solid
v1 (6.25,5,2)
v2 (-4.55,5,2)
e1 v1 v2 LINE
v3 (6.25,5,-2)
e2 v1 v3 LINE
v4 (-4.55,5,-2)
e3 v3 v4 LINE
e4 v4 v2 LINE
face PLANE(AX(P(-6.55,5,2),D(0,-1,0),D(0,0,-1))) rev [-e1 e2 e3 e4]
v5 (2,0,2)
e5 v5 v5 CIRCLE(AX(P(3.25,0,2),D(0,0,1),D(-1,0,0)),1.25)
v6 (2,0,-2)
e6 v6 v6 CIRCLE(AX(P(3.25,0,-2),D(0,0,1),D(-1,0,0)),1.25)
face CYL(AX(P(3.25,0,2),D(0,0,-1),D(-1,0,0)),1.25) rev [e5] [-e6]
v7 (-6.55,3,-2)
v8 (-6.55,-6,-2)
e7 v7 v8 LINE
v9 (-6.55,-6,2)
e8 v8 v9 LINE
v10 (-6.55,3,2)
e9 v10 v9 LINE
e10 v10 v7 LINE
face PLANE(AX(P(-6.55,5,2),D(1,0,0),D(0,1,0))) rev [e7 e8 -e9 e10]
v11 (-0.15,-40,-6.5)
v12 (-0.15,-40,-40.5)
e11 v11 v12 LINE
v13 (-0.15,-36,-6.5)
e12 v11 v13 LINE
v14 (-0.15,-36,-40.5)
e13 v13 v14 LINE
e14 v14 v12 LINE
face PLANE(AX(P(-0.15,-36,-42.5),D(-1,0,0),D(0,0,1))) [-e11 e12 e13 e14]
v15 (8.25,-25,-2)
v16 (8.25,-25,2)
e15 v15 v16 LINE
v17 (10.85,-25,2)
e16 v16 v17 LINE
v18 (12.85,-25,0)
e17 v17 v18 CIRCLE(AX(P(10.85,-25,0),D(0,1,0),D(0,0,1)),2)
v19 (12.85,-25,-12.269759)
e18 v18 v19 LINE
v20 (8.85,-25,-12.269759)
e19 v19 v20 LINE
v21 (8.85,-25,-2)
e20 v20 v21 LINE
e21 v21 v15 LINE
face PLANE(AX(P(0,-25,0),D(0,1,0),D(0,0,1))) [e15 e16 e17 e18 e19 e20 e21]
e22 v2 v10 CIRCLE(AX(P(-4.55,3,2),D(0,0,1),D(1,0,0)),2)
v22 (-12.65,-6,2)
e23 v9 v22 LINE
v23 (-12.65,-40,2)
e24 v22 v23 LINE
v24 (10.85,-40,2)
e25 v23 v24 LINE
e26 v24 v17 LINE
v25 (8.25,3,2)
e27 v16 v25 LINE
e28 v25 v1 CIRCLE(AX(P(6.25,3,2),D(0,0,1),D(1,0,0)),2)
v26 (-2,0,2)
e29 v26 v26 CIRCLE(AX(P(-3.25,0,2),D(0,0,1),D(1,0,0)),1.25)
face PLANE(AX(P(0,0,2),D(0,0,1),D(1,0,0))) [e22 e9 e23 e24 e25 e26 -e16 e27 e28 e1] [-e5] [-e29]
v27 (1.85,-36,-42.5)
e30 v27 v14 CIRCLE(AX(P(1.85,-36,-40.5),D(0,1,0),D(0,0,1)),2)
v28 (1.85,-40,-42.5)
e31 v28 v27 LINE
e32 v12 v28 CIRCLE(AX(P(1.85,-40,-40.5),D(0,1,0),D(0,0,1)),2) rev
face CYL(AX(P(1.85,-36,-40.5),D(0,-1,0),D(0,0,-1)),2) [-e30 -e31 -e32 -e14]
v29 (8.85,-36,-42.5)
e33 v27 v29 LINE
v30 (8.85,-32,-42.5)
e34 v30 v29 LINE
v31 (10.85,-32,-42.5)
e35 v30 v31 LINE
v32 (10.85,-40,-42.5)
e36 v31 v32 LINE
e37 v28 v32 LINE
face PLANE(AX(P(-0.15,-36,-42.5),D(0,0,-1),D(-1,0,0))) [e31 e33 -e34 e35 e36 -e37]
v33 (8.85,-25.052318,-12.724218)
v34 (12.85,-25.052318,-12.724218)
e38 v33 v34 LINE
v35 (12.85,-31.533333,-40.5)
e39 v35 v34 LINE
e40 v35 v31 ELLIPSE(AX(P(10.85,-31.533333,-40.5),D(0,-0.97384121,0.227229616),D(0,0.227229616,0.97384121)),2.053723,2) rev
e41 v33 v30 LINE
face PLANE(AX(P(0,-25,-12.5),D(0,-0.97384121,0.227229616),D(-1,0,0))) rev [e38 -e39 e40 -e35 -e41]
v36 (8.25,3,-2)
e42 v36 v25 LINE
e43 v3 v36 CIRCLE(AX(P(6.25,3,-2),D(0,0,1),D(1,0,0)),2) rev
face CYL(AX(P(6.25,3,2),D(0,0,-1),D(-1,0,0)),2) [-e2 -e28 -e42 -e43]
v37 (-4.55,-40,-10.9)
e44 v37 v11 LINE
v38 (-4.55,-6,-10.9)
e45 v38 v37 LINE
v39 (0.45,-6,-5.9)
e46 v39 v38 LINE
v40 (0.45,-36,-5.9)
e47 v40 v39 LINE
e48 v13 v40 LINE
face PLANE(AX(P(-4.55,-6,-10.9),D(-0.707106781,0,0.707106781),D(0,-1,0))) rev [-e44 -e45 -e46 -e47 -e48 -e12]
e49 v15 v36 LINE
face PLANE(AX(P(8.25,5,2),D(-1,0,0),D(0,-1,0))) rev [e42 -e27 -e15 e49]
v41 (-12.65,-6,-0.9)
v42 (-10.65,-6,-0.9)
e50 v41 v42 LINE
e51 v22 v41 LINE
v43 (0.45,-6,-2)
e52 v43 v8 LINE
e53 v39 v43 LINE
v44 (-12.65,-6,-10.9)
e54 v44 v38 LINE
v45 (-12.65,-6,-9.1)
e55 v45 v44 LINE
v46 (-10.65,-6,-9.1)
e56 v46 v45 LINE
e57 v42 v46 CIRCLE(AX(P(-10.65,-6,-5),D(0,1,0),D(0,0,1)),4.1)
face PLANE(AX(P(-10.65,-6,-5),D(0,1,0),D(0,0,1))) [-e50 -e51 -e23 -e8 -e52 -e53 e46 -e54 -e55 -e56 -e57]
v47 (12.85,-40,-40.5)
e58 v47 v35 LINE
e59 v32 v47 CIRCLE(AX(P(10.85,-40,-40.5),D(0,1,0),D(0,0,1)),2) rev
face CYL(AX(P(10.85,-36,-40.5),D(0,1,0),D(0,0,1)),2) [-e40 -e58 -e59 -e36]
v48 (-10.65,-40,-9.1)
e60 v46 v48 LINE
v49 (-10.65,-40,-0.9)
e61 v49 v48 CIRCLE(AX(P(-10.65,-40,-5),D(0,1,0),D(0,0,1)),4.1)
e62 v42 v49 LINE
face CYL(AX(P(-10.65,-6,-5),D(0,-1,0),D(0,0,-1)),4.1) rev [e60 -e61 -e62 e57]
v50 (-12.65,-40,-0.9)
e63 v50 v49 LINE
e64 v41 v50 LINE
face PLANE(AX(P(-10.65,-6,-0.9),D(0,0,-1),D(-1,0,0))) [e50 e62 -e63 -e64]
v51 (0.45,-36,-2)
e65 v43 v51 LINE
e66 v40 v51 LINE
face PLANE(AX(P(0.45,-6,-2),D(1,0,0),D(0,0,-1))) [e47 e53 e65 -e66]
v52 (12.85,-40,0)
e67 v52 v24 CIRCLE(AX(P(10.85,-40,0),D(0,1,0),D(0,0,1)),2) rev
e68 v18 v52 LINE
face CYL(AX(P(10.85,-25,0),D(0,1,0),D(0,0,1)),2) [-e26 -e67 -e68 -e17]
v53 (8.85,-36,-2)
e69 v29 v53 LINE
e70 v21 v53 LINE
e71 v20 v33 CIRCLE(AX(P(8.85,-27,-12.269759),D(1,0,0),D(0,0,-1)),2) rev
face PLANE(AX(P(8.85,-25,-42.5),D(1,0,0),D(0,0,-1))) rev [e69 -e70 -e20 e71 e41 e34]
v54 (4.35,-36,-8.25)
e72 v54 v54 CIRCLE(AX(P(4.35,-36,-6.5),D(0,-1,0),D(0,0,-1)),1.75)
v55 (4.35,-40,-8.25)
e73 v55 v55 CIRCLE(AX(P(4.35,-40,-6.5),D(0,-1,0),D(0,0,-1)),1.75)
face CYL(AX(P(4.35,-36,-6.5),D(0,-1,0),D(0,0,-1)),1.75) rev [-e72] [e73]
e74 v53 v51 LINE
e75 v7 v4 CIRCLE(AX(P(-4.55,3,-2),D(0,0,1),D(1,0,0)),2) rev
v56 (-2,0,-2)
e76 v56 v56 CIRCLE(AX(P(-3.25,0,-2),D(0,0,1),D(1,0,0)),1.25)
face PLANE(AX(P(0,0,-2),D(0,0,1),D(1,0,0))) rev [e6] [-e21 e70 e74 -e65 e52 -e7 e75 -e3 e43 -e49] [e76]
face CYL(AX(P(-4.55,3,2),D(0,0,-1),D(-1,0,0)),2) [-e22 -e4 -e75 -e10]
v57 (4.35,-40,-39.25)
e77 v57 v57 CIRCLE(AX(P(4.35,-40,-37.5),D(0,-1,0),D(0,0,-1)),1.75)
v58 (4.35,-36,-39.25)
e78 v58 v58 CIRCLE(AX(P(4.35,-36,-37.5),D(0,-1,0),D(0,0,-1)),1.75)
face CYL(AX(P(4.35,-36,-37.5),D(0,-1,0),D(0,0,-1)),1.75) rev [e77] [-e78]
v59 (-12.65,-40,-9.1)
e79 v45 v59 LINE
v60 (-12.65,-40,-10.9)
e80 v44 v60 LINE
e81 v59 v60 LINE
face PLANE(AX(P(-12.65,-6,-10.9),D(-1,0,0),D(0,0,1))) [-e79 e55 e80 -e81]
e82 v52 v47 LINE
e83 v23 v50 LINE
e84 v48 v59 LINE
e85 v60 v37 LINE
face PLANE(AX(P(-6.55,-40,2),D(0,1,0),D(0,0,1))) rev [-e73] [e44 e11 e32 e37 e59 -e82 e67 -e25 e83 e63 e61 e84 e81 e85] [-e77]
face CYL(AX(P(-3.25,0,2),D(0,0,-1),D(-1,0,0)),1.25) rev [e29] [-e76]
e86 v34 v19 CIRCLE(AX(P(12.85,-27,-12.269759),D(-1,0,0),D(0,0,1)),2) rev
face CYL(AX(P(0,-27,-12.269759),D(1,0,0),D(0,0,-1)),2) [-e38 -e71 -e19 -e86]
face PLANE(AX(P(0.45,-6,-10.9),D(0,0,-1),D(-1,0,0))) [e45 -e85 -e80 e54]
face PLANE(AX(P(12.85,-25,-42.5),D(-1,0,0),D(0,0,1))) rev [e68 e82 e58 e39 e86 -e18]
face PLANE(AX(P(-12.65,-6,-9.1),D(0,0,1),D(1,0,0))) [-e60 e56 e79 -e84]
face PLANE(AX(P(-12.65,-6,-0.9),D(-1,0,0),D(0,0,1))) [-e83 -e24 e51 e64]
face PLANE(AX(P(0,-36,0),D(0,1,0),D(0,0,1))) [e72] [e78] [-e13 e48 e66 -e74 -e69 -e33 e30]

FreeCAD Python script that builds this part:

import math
import FreeCAD as App
import Part
import Sketcher
Q = App.Units.Quantity


def edges_at(feature, points):
    """Names of the edges that pass closest to the given points."""
    edges = feature.Shape.Edges
    near = lambda p: min(range(len(edges)), key=lambda i: edges[i].distToShape(Part.Vertex(*p))[0])
    return sorted({f"Edge{near(p) + 1}" for p in points})

doc = App.newDocument("Part")
params = doc.addObject("Spreadsheet::Sheet", "Params")
for row, (alias, value) in enumerate([
    ("sketch1_diameter", "2.5 mm"),
    ("sketch1_height", "45 mm"),
    ("sketch1_width", "14.8 mm"),
    ("pad1_length", "4 mm"),
    ("sketch2_radius", "4.1 mm"),
    ("sketch2_width", "2 mm"),
    ("sketch2_width2", "7 mm"),
    ("sketch2_height", "4 mm"),
    ("sketch2_width3", "6.1 mm"),
    ("pad2_length", "34 mm"),
    ("chamfer_size", "5 mm"),
    ("sketch3_diameter", "3.5 mm"),
    ("sketch3_width", "9 mm"),
    ("sketch3_height", "44.5 mm"),
    ("pad3_length", "4 mm"),
    ("sketch4_width", "4 mm"),
    ("sketch4_width2", "0.6 mm"),
    ("sketch4_height", "40.5 mm"),
    ("pad4_length", "15 mm"),
    ("chamfer2_size", "7 mm"),
    ("chamfer2_size2", "30 mm"),
    ("fillet_radius", "2 mm"),
    ("fillet2_radius", "2 mm"),
], start=1):
    params.set(f"A{row}", alias)
    params.set(f"B{row}", "=" + value)
    params.setAlias(f"B{row}", alias)

body = doc.addObject("PartDesign::Body", "Body")

sketch1 = body.newObject("Sketcher::SketchObject", "Sketch")
sketch1.AttachmentSupport = (doc.getObject("XY_Plane"), [""])
sketch1.MapMode = "FlatFace"
sketch1.addGeometry([
    Part.LineSegment(App.Vector(-6.5, 5, 0), App.Vector(-6.5, -40, 0)),
    Part.LineSegment(App.Vector(-6.5, -40, 0), App.Vector(8.2, -40, 0)),
    Part.LineSegment(App.Vector(8.2, -40, 0), App.Vector(8.2, 5, 0)),
    Part.LineSegment(App.Vector(8.2, 5, 0), App.Vector(-6.5, 5, 0)),
    Part.Circle(App.Vector(-3.2, 0, 0), App.Vector(0, 0, 1), 1.2),
    Part.Circle(App.Vector(3.2, 0, 0), App.Vector(0, 0, 1), 1.2),
], False)
sketch1.addConstraint([
    Sketcher.Constraint("Coincident", 0, 2, 1, 1),
    Sketcher.Constraint("Coincident", 1, 2, 2, 1),
    Sketcher.Constraint("Coincident", 2, 2, 3, 1),
    Sketcher.Constraint("Coincident", 3, 2, 0, 1),
    Sketcher.Constraint("Vertical", 0),
    Sketcher.Constraint("Horizontal", 1),
    Sketcher.Constraint("Vertical", 2),
    Sketcher.Constraint("Horizontal", 3),
    Sketcher.Constraint("Equal", 4, 5),
    Sketcher.Constraint("Symmetric", 4, 3, 5, 3, -1, 1),
    Sketcher.Constraint("PointOnObject", 4, 3, -1),
    Sketcher.Constraint("Diameter", 4, Q("2.5 mm")),
    Sketcher.Constraint("DistanceY", 0, 2, 0, 1, Q("45 mm")),
    Sketcher.Constraint("DistanceX", 1, 1, 1, 2, Q("14.8 mm")),
    Sketcher.Constraint("DistanceY", 0, 2, -1, 1, Q("40 mm")),
    Sketcher.Constraint("DistanceX", 5, 3, 1, 2, Q("5 mm")),
    Sketcher.Constraint("DistanceX", 4, 3, 5, 3, Q("6.5 mm")),
])
sketch1.setExpression("Constraints[11]", "Params.sketch1_diameter")
sketch1.setExpression("Constraints[12]", "Params.sketch1_height")
sketch1.setExpression("Constraints[13]", "Params.sketch1_width")
pad1 = body.newObject("PartDesign::Pad", "Pad")
pad1.Profile = sketch1
pad1.setExpression("Length", "Params.pad1_length")
pad1.Midplane = True

sketch2 = body.newObject("Sketcher::SketchObject", "Sketch001")
sketch2.AttachmentSupport = (doc.getObject("XZ_Plane"), [""])
sketch2.MapMode = "FlatFace"
sketch2.AttachmentOffset = App.Placement(App.Vector(0, 0, 40), App.Rotation())
sketch2.addGeometry([
    Part.LineSegment(App.Vector(-6.5, -2, 0), App.Vector(-6.5, 2, 0)),
    Part.LineSegment(App.Vector(-6.5, 2, 0), App.Vector(-12.7, 2, 0)),
    Part.LineSegment(App.Vector(-12.7, 2, 0), App.Vector(-12.7, -0.9, 0)),
    Part.LineSegment(App.Vector(-12.7, -0.9, 0), App.Vector(-10.7, -0.9, 0)),
    Part.ArcOfCircle(Part.Circle(App.Vector(-10.7, -5, 0), App.Vector(0, 0, 1), 4.1), math.radians(-90), math.radians(90)),
    Part.LineSegment(App.Vector(-10.7, -9.1, 0), App.Vector(-12.7, -9.1, 0)),
    Part.LineSegment(App.Vector(-12.7, -9.1, 0), App.Vector(-12.7, -10.9, 0)),
    Part.LineSegment(App.Vector(-12.7, -10.9, 0), App.Vector(0.5, -10.9, 0)),
    Part.LineSegment(App.Vector(0.5, -10.9, 0), App.Vector(0.5, -2, 0)),
    Part.LineSegment(App.Vector(0.5, -2, 0), App.Vector(-6.5, -2, 0)),
], False)
sketch2.addConstraint([
    Sketcher.Constraint("Coincident", 0, 2, 1, 1),
    Sketcher.Constraint("Coincident", 1, 2, 2, 1),
    Sketcher.Constraint("Coincident", 2, 2, 3, 1),
    Sketcher.Constraint("Tangent", 3, 2, 4, 2),
    Sketcher.Constraint("Tangent", 4, 1, 5, 1),
    Sketcher.Constraint("Coincident", 5, 2, 6, 1),
    Sketcher.Constraint("Coincident", 6, 2, 7, 1),
    Sketcher.Constraint("Coincident", 7, 2, 8, 1),
    Sketcher.Constraint("Coincident", 8, 2, 9, 1),
    Sketcher.Constraint("Coincident", 9, 2, 0, 1),
    Sketcher.Constraint("Vertical", 0),
    Sketcher.Constraint("Horizontal", 1),
    Sketcher.Constraint("Vertical", 2),
    Sketcher.Constraint("Horizontal", 3),
    Sketcher.Constraint("Horizontal", 5),
    Sketcher.Constraint("Vertical", 6),
    Sketcher.Constraint("Horizontal", 7),
    Sketcher.Constraint("Vertical", 8),
    Sketcher.Constraint("Horizontal", 9),
    Sketcher.Constraint("Vertical", 2, 2, 5, 2),
    Sketcher.Constraint("Radius", 4, Q("4.1 mm")),
    Sketcher.Constraint("DistanceX", 3, 1, 3, 2, Q("2 mm")),
    Sketcher.Constraint("DistanceX", 9, 2, 9, 1, Q("7 mm")),
    Sketcher.Constraint("DistanceY", 0, 1, 0, 2, Q("4 mm")),
    Sketcher.Constraint("DistanceX", 1, 2, 1, 1, Q("6.1 mm")),
    Sketcher.Constraint("DistanceY", 2, 2, 2, 1, Q("2.9 mm")),
    Sketcher.Constraint("DistanceY", 6, 2, 6, 1, Q("1.8 mm")),
    Sketcher.Constraint("DistanceY", 4, 3, -1, 1, Q("5 mm")),
    Sketcher.Constraint("DistanceX", 4, 3, -1, 1, Q("10.65 mm")),
])
sketch2.setExpression("Constraints[20]", "Params.sketch2_radius")
sketch2.setExpression("Constraints[21]", "Params.sketch2_width")
sketch2.setExpression("Constraints[22]", "Params.sketch2_width2")
sketch2.setExpression("Constraints[23]", "Params.sketch2_height")
sketch2.setExpression("Constraints[24]", "Params.sketch2_width3")
pad2 = body.newObject("PartDesign::Pad", "Pad001")
pad2.Profile = sketch2
pad2.setExpression("Length", "Params.pad2_length")
pad2.Reversed = True
doc.recompute()

chamfer = body.newObject("PartDesign::Chamfer", "Chamfer")
chamfer.Base = (pad2, edges_at(pad2, [(0.45, -23, -10.9)]))
chamfer.setExpression("Size", "Params.chamfer_size")

sketch3 = body.newObject("Sketcher::SketchObject", "Sketch002")
sketch3.AttachmentSupport = (doc.getObject("XZ_Plane"), [""])
sketch3.MapMode = "FlatFace"
sketch3.AttachmentOffset = App.Placement(App.Vector(0, 0, 40), App.Rotation())
sketch3.addGeometry([
    Part.LineSegment(App.Vector(-0.1, 2, 0), App.Vector(-0.1, -42.5, 0)),
    Part.LineSegment(App.Vector(-0.1, -42.5, 0), App.Vector(8.8, -42.5, 0)),
    Part.LineSegment(App.Vector(8.8, -42.5, 0), App.Vector(8.8, 2, 0)),
    Part.LineSegment(App.Vector(8.8, 2, 0), App.Vector(-0.1, 2, 0)),
    Part.Circle(App.Vector(4.3, -37.5, 0), App.Vector(0, 0, 1), 1.8),
    Part.Circle(App.Vector(4.3, -6.5, 0), App.Vector(0, 0, 1), 1.8),
], False)
sketch3.addConstraint([
    Sketcher.Constraint("Coincident", 0, 2, 1, 1),
    Sketcher.Constraint("Coincident", 1, 2, 2, 1),
    Sketcher.Constraint("Coincident", 2, 2, 3, 1),
    Sketcher.Constraint("Coincident", 3, 2, 0, 1),
    Sketcher.Constraint("Vertical", 0),
    Sketcher.Constraint("Horizontal", 1),
    Sketcher.Constraint("Vertical", 2),
    Sketcher.Constraint("Horizontal", 3),
    Sketcher.Constraint("Equal", 4, 5),
    Sketcher.Constraint("Vertical", 4, 3, 5, 3),
    Sketcher.Constraint("Diameter", 4, Q("3.5 mm")),
    Sketcher.Constraint("DistanceX", 1, 1, 1, 2, Q("9 mm")),
    Sketcher.Constraint("DistanceY", 0, 2, 0, 1, Q("44.5 mm")),
    Sketcher.Constraint("DistanceY", -1, 1, 2, 2, Q("2 mm")),
    Sketcher.Constraint("DistanceY", 4, 3, 5, 3, Q("31 mm")),
    Sketcher.Constraint("DistanceY", 0, 2, 4, 3, Q("5 mm")),
    Sketcher.Constraint("DistanceX", 0, 2, 4, 3, Q("4.5 mm")),
    Sketcher.Constraint("DistanceX", -1, 1, 4, 3, Q("4.35 mm")),
])
sketch3.setExpression("Constraints[10]", "Params.sketch3_diameter")
sketch3.setExpression("Constraints[11]", "Params.sketch3_width")
sketch3.setExpression("Constraints[12]", "Params.sketch3_height")
pad3 = body.newObject("PartDesign::Pad", "Pad002")
pad3.Profile = sketch3
pad3.setExpression("Length", "Params.pad3_length")
pad3.Reversed = True

sketch4 = body.newObject("Sketcher::SketchObject", "Sketch003")
sketch4.AttachmentSupport = (doc.getObject("XZ_Plane"), [""])
sketch4.MapMode = "FlatFace"
sketch4.AttachmentOffset = App.Placement(App.Vector(0, 0, 40), App.Rotation())
sketch4.addGeometry([
    Part.LineSegment(App.Vector(12.8, -42.5, 0), App.Vector(8.8, -42.5, 0)),
    Part.LineSegment(App.Vector(8.8, -42.5, 0), App.Vector(8.8, -2, 0)),
    Part.LineSegment(App.Vector(8.8, -2, 0), App.Vector(8.2, -2, 0)),
    Part.LineSegment(App.Vector(8.2, -2, 0), App.Vector(8.2, 2, 0)),
    Part.LineSegment(App.Vector(8.2, 2, 0), App.Vector(12.8, 2, 0)),
    Part.LineSegment(App.Vector(12.8, 2, 0), App.Vector(12.8, -42.5, 0)),
], False)
sketch4.addConstraint([
    Sketcher.Constraint("Coincident", 0, 2, 1, 1),
    Sketcher.Constraint("Coincident", 1, 2, 2, 1),
    Sketcher.Constraint("Coincident", 2, 2, 3, 1),
    Sketcher.Constraint("Coincident", 3, 2, 4, 1),
    Sketcher.Constraint("Coincident", 4, 2, 5, 1),
    Sketcher.Constraint("Coincident", 5, 2, 0, 1),
    Sketcher.Constraint("Horizontal", 0),
    Sketcher.Constraint("Vertical", 1),
    Sketcher.Constraint("Horizontal", 2),
    Sketcher.Constraint("Vertical", 3),
    Sketcher.Constraint("Horizontal", 4),
    Sketcher.Constraint("Vertical", 5),
    Sketcher.Constraint("Equal", 0, 3),
    Sketcher.Constraint("DistanceX", 0, 2, 0, 1, Q("4 mm")),
    Sketcher.Constraint("DistanceX", 2, 2, 2, 1, Q("0.6 mm")),
    Sketcher.Constraint("DistanceY", 1, 1, 1, 2, Q("40.5 mm")),
    Sketcher.Constraint("DistanceY", 1, 2, -1, 1, Q("2 mm")),
    Sketcher.Constraint("DistanceX", -1, 1, 0, 2, Q("8.85 mm")),
])
sketch4.setExpression("Constraints[13]", "Params.sketch4_width")
sketch4.setExpression("Constraints[14]", "Params.sketch4_width2")
sketch4.setExpression("Constraints[15]", "Params.sketch4_height")
pad4 = body.newObject("PartDesign::Pad", "Pad003")
pad4.Profile = sketch4
pad4.setExpression("Length", "Params.pad4_length")
pad4.Reversed = True
doc.recompute()

chamfer2 = body.newObject("PartDesign::Chamfer", "Chamfer001")
chamfer2.Base = (pad4, edges_at(pad4, [(10.85, -25, -42.5)]))
chamfer2.ChamferType = "Two distances"
chamfer2.setExpression("Size", "Params.chamfer2_size")
chamfer2.setExpression("Size2", "Params.chamfer2_size2")
chamfer2.FlipDirection = True
doc.recompute()

fillet = body.newObject("PartDesign::Fillet", "Fillet")
fillet.Base = (chamfer2, edges_at(chamfer2, [
    (10.85, -25, -12.5),
    (12.85, -36, -42.5),
    (-0.15, -38, -42.5),
    (12.85, -32.5, 2),
]))
fillet.setExpression("Radius", "Params.fillet_radius")
doc.recompute()

fillet2 = body.newObject("PartDesign::Fillet", "Fillet001")
fillet2.Base = (fillet, edges_at(fillet, [(-6.55, 5, 0), (8.25, 5, 0)]))
fillet2.setExpression("Radius", "Params.fillet2_radius")

doc.recompute()
